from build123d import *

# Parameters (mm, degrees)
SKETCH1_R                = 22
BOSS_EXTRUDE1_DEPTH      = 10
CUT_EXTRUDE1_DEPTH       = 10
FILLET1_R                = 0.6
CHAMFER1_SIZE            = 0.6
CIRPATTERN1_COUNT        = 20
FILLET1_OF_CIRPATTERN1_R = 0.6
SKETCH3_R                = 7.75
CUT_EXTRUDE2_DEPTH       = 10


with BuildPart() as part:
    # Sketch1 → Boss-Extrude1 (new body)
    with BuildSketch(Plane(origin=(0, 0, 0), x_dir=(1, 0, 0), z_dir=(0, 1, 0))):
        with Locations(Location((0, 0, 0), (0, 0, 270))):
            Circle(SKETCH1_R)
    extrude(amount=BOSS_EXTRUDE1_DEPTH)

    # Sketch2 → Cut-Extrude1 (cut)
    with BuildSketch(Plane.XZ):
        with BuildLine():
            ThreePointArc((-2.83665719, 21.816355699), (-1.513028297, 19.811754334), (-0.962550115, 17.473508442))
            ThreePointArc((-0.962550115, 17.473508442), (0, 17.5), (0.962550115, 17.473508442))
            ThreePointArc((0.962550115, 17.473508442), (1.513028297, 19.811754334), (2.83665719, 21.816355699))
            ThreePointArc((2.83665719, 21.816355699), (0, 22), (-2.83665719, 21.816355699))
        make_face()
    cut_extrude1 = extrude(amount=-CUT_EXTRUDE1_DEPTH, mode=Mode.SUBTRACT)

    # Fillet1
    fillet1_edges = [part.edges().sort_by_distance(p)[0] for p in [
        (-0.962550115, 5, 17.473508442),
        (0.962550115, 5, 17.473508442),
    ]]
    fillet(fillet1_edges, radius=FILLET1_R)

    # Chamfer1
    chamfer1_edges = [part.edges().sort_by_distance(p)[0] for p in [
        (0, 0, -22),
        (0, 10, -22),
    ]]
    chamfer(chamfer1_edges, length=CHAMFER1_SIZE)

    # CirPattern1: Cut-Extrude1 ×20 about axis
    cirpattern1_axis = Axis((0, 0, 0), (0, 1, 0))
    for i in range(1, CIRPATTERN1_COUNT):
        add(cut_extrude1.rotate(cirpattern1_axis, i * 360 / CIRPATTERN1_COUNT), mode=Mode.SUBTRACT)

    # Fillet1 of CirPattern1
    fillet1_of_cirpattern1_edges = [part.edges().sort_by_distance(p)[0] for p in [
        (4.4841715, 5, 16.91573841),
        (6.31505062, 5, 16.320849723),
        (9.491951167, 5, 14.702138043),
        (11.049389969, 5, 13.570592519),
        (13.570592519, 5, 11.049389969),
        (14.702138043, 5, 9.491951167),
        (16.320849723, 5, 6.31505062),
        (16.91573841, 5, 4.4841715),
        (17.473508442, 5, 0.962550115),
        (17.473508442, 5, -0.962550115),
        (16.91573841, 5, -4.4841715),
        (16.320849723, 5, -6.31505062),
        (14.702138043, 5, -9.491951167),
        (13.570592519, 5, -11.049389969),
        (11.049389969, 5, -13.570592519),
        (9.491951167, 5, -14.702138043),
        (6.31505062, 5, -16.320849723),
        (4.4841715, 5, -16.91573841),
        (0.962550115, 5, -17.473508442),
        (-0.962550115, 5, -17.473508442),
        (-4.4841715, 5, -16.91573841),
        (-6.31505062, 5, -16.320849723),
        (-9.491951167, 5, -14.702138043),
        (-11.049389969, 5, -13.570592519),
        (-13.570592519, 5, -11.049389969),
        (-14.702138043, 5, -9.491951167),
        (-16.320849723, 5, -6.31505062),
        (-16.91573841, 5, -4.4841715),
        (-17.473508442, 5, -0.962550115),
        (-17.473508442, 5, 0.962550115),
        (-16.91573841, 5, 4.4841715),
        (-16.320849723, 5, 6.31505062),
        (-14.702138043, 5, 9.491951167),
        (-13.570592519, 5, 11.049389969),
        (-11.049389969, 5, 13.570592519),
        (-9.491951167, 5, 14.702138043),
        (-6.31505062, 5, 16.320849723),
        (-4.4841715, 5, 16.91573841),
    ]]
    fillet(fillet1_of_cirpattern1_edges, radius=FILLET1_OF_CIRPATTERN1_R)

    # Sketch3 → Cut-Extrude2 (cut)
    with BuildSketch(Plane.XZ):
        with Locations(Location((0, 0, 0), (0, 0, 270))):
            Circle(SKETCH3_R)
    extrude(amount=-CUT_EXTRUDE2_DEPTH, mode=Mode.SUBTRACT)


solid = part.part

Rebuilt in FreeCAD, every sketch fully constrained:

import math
import FreeCAD as App
import Part
import Sketcher
Q = App.Units.Quantity


def edges_at(feature, points):
    """Names of the edges that pass closest to the given points."""
    edges = feature.Shape.Edges
    near = lambda p: min(range(len(edges)), key=lambda i: edges[i].distToShape(Part.Vertex(*p))[0])
    return sorted({f"Edge{near(p) + 1}" for p in points})

doc = App.newDocument("Part")
params = doc.addObject("Spreadsheet::Sheet", "Params")
for row, (alias, value) in enumerate([
    ("sketch1_diameter", "44 mm"),
    ("pad1_length", "10 mm"),
    ("sketch2_radius", "22 mm"),
    ("sketch2_radius2", "17.5 mm"),
    ("pocket1_length", "10 mm"),
    ("fillet_radius", "0.6 mm"),
    ("chamfer_size", "0.6 mm"),
    ("fillet2_radius", "0.6 mm"),
    ("sketch3_diameter", "15.5 mm"),
    ("pocket2_length", "10 mm"),
], start=1):
    params.set(f"A{row}", alias)
    params.set(f"B{row}", "=" + value)
    params.setAlias(f"B{row}", alias)

body = doc.addObject("PartDesign::Body", "Body")

# Sketch on XZ plane
sketch1 = body.newObject("Sketcher::SketchObject", "Sketch")
sketch1.AttachmentSupport = (doc.getObject("XZ_Plane"), [""])
sketch1.MapMode = "FlatFace"
sketch1.addGeometry(Part.Circle(App.Vector(0, 0, 0), App.Vector(0, 0, 1), 22), False)
sketch1.addConstraint(Sketcher.Constraint("Coincident", 0, 3, -1, 1))
sketch1.addConstraint(Sketcher.Constraint("Diameter", 0, Q("44 mm")))
sketch1.setExpression("Constraints[1]", "Params.sketch1_diameter")
pad1 = body.newObject("PartDesign::Pad", "Pad")
pad1.Profile = sketch1
pad1.setExpression("Length", "Params.pad1_length")
pad1.Reversed = True

# Sketch on XZ plane
sketch2 = body.newObject("Sketcher::SketchObject", "Sketch001")
sketch2.AttachmentSupport = (doc.getObject("XZ_Plane"), [""])
sketch2.MapMode = "FlatFace"
sketch2.addGeometry(Part.ArcOfCircle(Part.Circle(App.Vector(-7.8, 17.1, 0), App.Vector(0, 0, 1), 6.9), math.radians(3), math.radians(44)), False)
sketch2.addGeometry(Part.ArcOfCircle(Part.Circle(App.Vector(0, 0, 0), App.Vector(0, 0, 1), 17.5), math.radians(86.85), math.radians(93.15)), False)
sketch2.addGeometry(Part.ArcOfCircle(Part.Circle(App.Vector(7.8, 17.1, 0), App.Vector(0, 0, 1), 6.9), math.radians(136), math.radians(177)), False)
sketch2.addGeometry(Part.ArcOfCircle(Part.Circle(App.Vector(0, 0, 0), App.Vector(0, 0, 1), 22), math.radians(82.59), math.radians(97.41)), False)
sketch2.addConstraint(Sketcher.Constraint("Coincident", 0, 1, 1, 2))
sketch2.addConstraint(Sketcher.Constraint("Coincident", 1, 1, 2, 2))
sketch2.addConstraint(Sketcher.Constraint("Coincident", 2, 1, 3, 1))
sketch2.addConstraint(Sketcher.Constraint("Coincident", 3, 2, 0, 2))
sketch2.addConstraint(Sketcher.Constraint("Coincident", 1, 3, -1, 1))
sketch2.addConstraint(Sketcher.Constraint("Coincident", 3, 3, -1, 1))
sketch2.addConstraint(Sketcher.Constraint("Equal", 0, 2))
sketch2.addConstraint(Sketcher.Constraint("Symmetric", 0, 3, 2, 3, -2))
sketch2.addConstraint(Sketcher.Constraint("Radius", 3, Q("22 mm")))
sketch2.addConstraint(Sketcher.Constraint("Radius", 1, Q("17.5 mm")))
sketch2.addConstraint(Sketcher.Constraint("Radius", 0, Q("6.852667 mm")))
sketch2.addConstraint(Sketcher.Constraint("DistanceX", 0, 1, 1, 1, Q("1.9251 mm")))
sketch2.addConstraint(Sketcher.Constraint("DistanceX", 0, 3, 2, 1, Q("10.6415 mm")))
sketch2.setExpression("Constraints[8]", "Params.sketch2_radius")
sketch2.setExpression("Constraints[9]", "Params.sketch2_radius2")
pocket1 = body.newObject("PartDesign::Pocket", "Pocket")
pocket1.Profile = sketch2
pocket1.setExpression("Length", "Params.pocket1_length")
doc.recompute()

fillet = body.newObject("PartDesign::Fillet", "Fillet")
fillet.Base = (pocket1, edges_at(pocket1, [(-0.963, 5, 17.474), (0.963, 5, 17.474)]))
fillet.setExpression("Radius", "Params.fillet_radius")
doc.recompute()

chamfer = body.newObject("PartDesign::Chamfer", "Chamfer")
chamfer.Base = (fillet, edges_at(fillet, [(0, 0, -22), (0, 10, -22)]))
chamfer.setExpression("Size", "Params.chamfer_size")
doc.recompute()

polarpattern = body.newObject("PartDesign::PolarPattern", "PolarPattern")
polarpattern.Originals = [pocket1]
polarpattern.Axis = (doc.getObject("Y_Axis"), [""])
polarpattern.Angle = 360
polarpattern.Occurrences = 20
body.Tip = polarpattern
doc.recompute()

fillet2 = body.newObject("PartDesign::Fillet", "Fillet001")
fillet2.Base = (polarpattern, edges_at(polarpattern, [
    (4.484, 5, 16.916),
    (6.315, 5, 16.321),
    (9.492, 5, 14.702),
    (11.049, 5, 13.571),
    (13.571, 5, 11.049),
    (14.702, 5, 9.492),
    (16.321, 5, 6.315),
    (16.916, 5, 4.484),
    (17.474, 5, 0.963),
    (17.474, 5, -0.963),
    (16.916, 5, -4.484),
    (16.321, 5, -6.315),
    (14.702, 5, -9.492),
    (13.571, 5, -11.049),
    (11.049, 5, -13.571),
    (9.492, 5, -14.702),
    (6.315, 5, -16.321),
    (4.484, 5, -16.916),
    (0.963, 5, -17.474),
    (-0.963, 5, -17.474),
    (-4.484, 5, -16.916),
    (-6.315, 5, -16.321),
    (-9.492, 5, -14.702),
    (-11.049, 5, -13.571),
    (-13.571, 5, -11.049),
    (-14.702, 5, -9.492),
    (-16.321, 5, -6.315),
    (-16.916, 5, -4.484),
    (-17.474, 5, -0.963),
    (-17.474, 5, 0.963),
    (-16.916, 5, 4.484),
    (-16.321, 5, 6.315),
    (-14.702, 5, 9.492),
    (-13.571, 5, 11.049),
    (-11.049, 5, 13.571),
    (-9.492, 5, 14.702),
    (-6.315, 5, 16.321),
    (-4.484, 5, 16.916),
]))
fillet2.setExpression("Radius", "Params.fillet2_radius")

# Sketch on XZ plane
sketch3 = body.newObject("Sketcher::SketchObject", "Sketch002")
sketch3.AttachmentSupport = (doc.getObject("XZ_Plane"), [""])
sketch3.MapMode = "FlatFace"
sketch3.addGeometry(Part.Circle(App.Vector(0, 0, 0), App.Vector(0, 0, 1), 8), False)
sketch3.addConstraint(Sketcher.Constraint("Coincident", 0, 3, -1, 1))
sketch3.addConstraint(Sketcher.Constraint("Diameter", 0, Q("15.5 mm")))
sketch3.setExpression("Constraints[1]", "Params.sketch3_diameter")
pocket2 = body.newObject("PartDesign::Pocket", "Pocket001")
pocket2.Profile = sketch3
pocket2.setExpression("Length", "Params.pocket2_length")

doc.recompute()
